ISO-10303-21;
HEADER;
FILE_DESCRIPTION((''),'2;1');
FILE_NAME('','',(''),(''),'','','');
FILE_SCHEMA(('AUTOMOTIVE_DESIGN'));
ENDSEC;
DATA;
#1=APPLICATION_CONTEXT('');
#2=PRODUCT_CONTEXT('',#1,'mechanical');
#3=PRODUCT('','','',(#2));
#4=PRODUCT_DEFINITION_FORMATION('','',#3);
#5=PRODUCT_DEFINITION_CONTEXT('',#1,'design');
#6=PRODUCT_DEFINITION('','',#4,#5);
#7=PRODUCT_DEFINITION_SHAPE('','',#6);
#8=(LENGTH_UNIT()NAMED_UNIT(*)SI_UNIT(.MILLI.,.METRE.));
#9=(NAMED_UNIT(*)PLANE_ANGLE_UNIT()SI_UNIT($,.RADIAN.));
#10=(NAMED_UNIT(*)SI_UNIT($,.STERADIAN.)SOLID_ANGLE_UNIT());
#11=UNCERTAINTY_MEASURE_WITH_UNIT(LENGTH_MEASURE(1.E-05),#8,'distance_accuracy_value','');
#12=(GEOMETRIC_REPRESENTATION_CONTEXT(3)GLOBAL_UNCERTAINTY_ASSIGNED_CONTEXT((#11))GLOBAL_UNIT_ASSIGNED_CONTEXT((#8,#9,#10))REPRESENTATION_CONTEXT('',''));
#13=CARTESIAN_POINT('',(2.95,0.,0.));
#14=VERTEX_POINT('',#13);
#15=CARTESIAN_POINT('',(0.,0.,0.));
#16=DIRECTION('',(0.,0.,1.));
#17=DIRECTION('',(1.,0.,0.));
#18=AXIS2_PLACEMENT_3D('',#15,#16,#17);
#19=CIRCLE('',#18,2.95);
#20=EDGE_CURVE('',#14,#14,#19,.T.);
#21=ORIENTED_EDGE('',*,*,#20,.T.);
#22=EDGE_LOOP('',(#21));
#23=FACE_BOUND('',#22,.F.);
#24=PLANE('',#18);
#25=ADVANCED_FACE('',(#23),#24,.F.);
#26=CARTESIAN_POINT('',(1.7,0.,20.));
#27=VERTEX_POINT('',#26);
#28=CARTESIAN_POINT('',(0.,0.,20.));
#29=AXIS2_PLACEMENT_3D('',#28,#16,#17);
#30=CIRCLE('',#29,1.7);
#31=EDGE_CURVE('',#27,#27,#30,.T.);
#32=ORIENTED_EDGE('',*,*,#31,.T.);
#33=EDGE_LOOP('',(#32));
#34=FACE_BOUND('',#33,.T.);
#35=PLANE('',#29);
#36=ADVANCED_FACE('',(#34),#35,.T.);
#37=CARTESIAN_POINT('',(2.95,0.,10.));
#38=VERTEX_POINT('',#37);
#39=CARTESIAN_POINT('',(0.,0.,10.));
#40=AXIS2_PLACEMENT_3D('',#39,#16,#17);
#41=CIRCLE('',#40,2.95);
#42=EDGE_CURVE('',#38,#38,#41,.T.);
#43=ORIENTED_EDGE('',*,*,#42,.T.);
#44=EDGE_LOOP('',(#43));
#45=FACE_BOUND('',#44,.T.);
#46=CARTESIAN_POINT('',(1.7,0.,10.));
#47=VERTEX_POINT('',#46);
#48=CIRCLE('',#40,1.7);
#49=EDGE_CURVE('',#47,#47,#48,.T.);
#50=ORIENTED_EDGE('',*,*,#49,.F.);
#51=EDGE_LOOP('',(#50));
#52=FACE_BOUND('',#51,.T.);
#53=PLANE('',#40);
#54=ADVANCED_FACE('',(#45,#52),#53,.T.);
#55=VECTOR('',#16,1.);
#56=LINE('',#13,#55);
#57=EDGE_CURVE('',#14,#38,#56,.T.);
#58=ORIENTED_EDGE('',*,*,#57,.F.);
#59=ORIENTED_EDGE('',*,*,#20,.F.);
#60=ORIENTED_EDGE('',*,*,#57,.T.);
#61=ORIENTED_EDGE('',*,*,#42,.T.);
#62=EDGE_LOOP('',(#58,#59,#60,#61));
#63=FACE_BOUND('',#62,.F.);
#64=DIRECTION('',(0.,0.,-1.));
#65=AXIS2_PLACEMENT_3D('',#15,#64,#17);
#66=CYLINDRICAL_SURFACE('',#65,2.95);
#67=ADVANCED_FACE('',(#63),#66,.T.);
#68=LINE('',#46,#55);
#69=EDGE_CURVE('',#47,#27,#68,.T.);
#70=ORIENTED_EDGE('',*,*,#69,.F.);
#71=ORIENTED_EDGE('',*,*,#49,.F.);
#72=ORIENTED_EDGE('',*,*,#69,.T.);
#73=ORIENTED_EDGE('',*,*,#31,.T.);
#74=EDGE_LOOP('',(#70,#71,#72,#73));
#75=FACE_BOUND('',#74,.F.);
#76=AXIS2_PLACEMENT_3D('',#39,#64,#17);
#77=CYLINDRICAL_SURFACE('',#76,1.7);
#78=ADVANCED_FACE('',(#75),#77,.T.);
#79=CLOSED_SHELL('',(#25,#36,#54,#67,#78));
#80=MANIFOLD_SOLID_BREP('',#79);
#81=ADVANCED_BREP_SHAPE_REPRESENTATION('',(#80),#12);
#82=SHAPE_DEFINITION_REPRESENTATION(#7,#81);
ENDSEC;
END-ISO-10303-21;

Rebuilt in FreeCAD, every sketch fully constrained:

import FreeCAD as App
import Part
import Sketcher
from FreeCAD import Vector
Q = App.Units.Quantity

doc = App.newDocument("Part")
params = doc.addObject("Spreadsheet::Sheet", "Params")
for row, (alias, value) in enumerate([
    ("sketch1_diameter", "5.9 mm"),
    ("pad1_length", "10 mm"),
    ("sketch2_diameter", "3.4 mm"),
    ("pad2_length", "10 mm"),
], start=1):
    params.set(f"A{row}", alias)
    params.set(f"B{row}", "=" + value)
    params.setAlias(f"B{row}", alias)

body = doc.addObject("PartDesign::Body", "Body")

# Sketch on XY plane
sketch1 = body.newObject("Sketcher::SketchObject", "Sketch")
sketch1.AttachmentSupport = (doc.getObject("XY_Plane"), [""])
sketch1.MapMode = "FlatFace"
sketch1.addGeometry(Part.Circle(Vector(0, 0, 0), Vector(0, 0, 1), 2.95), False)
sketch1.addConstraint([
    Sketcher.Constraint("Coincident", 0, 3, -1, 1),
    Sketcher.Constraint("Diameter", 0, Q("5.9 mm")),
])
sketch1.setExpression("Constraints[1]", "Params.sketch1_diameter")
pad1 = body.newObject("PartDesign::Pad", "Pad")
pad1.Profile = sketch1
pad1.setExpression("Length", "Params.pad1_length")
body2 = doc.addObject("PartDesign::Body", "Body001")

# Sketch on XY plane
sketch2 = body2.newObject("Sketcher::SketchObject", "Sketch001")
sketch2.AttachmentSupport = (doc.getObject("XY_Plane001"), [""])
sketch2.MapMode = "FlatFace"
sketch2.AttachmentOffset = App.Placement(Vector(0, 0, 10), App.Rotation())
sketch2.addGeometry(Part.Circle(Vector(0, 0, 0), Vector(0, 0, 1), 1.7), False)
sketch2.addConstraint([
    Sketcher.Constraint("Coincident", 0, 3, -1, 1),
    Sketcher.Constraint("Diameter", 0, Q("3.4 mm")),
])
sketch2.setExpression("Constraints[1]", "Params.sketch2_diameter")
pad2 = body2.newObject("PartDesign::Pad", "Pad001")
pad2.Profile = sketch2
pad2.setExpression("Length", "Params.pad2_length")
doc.recompute()

boolean = body2.newObject("PartDesign::Boolean", "Boolean")
boolean.Type = "Fuse"
boolean.addObjects([body])

doc.recompute()
